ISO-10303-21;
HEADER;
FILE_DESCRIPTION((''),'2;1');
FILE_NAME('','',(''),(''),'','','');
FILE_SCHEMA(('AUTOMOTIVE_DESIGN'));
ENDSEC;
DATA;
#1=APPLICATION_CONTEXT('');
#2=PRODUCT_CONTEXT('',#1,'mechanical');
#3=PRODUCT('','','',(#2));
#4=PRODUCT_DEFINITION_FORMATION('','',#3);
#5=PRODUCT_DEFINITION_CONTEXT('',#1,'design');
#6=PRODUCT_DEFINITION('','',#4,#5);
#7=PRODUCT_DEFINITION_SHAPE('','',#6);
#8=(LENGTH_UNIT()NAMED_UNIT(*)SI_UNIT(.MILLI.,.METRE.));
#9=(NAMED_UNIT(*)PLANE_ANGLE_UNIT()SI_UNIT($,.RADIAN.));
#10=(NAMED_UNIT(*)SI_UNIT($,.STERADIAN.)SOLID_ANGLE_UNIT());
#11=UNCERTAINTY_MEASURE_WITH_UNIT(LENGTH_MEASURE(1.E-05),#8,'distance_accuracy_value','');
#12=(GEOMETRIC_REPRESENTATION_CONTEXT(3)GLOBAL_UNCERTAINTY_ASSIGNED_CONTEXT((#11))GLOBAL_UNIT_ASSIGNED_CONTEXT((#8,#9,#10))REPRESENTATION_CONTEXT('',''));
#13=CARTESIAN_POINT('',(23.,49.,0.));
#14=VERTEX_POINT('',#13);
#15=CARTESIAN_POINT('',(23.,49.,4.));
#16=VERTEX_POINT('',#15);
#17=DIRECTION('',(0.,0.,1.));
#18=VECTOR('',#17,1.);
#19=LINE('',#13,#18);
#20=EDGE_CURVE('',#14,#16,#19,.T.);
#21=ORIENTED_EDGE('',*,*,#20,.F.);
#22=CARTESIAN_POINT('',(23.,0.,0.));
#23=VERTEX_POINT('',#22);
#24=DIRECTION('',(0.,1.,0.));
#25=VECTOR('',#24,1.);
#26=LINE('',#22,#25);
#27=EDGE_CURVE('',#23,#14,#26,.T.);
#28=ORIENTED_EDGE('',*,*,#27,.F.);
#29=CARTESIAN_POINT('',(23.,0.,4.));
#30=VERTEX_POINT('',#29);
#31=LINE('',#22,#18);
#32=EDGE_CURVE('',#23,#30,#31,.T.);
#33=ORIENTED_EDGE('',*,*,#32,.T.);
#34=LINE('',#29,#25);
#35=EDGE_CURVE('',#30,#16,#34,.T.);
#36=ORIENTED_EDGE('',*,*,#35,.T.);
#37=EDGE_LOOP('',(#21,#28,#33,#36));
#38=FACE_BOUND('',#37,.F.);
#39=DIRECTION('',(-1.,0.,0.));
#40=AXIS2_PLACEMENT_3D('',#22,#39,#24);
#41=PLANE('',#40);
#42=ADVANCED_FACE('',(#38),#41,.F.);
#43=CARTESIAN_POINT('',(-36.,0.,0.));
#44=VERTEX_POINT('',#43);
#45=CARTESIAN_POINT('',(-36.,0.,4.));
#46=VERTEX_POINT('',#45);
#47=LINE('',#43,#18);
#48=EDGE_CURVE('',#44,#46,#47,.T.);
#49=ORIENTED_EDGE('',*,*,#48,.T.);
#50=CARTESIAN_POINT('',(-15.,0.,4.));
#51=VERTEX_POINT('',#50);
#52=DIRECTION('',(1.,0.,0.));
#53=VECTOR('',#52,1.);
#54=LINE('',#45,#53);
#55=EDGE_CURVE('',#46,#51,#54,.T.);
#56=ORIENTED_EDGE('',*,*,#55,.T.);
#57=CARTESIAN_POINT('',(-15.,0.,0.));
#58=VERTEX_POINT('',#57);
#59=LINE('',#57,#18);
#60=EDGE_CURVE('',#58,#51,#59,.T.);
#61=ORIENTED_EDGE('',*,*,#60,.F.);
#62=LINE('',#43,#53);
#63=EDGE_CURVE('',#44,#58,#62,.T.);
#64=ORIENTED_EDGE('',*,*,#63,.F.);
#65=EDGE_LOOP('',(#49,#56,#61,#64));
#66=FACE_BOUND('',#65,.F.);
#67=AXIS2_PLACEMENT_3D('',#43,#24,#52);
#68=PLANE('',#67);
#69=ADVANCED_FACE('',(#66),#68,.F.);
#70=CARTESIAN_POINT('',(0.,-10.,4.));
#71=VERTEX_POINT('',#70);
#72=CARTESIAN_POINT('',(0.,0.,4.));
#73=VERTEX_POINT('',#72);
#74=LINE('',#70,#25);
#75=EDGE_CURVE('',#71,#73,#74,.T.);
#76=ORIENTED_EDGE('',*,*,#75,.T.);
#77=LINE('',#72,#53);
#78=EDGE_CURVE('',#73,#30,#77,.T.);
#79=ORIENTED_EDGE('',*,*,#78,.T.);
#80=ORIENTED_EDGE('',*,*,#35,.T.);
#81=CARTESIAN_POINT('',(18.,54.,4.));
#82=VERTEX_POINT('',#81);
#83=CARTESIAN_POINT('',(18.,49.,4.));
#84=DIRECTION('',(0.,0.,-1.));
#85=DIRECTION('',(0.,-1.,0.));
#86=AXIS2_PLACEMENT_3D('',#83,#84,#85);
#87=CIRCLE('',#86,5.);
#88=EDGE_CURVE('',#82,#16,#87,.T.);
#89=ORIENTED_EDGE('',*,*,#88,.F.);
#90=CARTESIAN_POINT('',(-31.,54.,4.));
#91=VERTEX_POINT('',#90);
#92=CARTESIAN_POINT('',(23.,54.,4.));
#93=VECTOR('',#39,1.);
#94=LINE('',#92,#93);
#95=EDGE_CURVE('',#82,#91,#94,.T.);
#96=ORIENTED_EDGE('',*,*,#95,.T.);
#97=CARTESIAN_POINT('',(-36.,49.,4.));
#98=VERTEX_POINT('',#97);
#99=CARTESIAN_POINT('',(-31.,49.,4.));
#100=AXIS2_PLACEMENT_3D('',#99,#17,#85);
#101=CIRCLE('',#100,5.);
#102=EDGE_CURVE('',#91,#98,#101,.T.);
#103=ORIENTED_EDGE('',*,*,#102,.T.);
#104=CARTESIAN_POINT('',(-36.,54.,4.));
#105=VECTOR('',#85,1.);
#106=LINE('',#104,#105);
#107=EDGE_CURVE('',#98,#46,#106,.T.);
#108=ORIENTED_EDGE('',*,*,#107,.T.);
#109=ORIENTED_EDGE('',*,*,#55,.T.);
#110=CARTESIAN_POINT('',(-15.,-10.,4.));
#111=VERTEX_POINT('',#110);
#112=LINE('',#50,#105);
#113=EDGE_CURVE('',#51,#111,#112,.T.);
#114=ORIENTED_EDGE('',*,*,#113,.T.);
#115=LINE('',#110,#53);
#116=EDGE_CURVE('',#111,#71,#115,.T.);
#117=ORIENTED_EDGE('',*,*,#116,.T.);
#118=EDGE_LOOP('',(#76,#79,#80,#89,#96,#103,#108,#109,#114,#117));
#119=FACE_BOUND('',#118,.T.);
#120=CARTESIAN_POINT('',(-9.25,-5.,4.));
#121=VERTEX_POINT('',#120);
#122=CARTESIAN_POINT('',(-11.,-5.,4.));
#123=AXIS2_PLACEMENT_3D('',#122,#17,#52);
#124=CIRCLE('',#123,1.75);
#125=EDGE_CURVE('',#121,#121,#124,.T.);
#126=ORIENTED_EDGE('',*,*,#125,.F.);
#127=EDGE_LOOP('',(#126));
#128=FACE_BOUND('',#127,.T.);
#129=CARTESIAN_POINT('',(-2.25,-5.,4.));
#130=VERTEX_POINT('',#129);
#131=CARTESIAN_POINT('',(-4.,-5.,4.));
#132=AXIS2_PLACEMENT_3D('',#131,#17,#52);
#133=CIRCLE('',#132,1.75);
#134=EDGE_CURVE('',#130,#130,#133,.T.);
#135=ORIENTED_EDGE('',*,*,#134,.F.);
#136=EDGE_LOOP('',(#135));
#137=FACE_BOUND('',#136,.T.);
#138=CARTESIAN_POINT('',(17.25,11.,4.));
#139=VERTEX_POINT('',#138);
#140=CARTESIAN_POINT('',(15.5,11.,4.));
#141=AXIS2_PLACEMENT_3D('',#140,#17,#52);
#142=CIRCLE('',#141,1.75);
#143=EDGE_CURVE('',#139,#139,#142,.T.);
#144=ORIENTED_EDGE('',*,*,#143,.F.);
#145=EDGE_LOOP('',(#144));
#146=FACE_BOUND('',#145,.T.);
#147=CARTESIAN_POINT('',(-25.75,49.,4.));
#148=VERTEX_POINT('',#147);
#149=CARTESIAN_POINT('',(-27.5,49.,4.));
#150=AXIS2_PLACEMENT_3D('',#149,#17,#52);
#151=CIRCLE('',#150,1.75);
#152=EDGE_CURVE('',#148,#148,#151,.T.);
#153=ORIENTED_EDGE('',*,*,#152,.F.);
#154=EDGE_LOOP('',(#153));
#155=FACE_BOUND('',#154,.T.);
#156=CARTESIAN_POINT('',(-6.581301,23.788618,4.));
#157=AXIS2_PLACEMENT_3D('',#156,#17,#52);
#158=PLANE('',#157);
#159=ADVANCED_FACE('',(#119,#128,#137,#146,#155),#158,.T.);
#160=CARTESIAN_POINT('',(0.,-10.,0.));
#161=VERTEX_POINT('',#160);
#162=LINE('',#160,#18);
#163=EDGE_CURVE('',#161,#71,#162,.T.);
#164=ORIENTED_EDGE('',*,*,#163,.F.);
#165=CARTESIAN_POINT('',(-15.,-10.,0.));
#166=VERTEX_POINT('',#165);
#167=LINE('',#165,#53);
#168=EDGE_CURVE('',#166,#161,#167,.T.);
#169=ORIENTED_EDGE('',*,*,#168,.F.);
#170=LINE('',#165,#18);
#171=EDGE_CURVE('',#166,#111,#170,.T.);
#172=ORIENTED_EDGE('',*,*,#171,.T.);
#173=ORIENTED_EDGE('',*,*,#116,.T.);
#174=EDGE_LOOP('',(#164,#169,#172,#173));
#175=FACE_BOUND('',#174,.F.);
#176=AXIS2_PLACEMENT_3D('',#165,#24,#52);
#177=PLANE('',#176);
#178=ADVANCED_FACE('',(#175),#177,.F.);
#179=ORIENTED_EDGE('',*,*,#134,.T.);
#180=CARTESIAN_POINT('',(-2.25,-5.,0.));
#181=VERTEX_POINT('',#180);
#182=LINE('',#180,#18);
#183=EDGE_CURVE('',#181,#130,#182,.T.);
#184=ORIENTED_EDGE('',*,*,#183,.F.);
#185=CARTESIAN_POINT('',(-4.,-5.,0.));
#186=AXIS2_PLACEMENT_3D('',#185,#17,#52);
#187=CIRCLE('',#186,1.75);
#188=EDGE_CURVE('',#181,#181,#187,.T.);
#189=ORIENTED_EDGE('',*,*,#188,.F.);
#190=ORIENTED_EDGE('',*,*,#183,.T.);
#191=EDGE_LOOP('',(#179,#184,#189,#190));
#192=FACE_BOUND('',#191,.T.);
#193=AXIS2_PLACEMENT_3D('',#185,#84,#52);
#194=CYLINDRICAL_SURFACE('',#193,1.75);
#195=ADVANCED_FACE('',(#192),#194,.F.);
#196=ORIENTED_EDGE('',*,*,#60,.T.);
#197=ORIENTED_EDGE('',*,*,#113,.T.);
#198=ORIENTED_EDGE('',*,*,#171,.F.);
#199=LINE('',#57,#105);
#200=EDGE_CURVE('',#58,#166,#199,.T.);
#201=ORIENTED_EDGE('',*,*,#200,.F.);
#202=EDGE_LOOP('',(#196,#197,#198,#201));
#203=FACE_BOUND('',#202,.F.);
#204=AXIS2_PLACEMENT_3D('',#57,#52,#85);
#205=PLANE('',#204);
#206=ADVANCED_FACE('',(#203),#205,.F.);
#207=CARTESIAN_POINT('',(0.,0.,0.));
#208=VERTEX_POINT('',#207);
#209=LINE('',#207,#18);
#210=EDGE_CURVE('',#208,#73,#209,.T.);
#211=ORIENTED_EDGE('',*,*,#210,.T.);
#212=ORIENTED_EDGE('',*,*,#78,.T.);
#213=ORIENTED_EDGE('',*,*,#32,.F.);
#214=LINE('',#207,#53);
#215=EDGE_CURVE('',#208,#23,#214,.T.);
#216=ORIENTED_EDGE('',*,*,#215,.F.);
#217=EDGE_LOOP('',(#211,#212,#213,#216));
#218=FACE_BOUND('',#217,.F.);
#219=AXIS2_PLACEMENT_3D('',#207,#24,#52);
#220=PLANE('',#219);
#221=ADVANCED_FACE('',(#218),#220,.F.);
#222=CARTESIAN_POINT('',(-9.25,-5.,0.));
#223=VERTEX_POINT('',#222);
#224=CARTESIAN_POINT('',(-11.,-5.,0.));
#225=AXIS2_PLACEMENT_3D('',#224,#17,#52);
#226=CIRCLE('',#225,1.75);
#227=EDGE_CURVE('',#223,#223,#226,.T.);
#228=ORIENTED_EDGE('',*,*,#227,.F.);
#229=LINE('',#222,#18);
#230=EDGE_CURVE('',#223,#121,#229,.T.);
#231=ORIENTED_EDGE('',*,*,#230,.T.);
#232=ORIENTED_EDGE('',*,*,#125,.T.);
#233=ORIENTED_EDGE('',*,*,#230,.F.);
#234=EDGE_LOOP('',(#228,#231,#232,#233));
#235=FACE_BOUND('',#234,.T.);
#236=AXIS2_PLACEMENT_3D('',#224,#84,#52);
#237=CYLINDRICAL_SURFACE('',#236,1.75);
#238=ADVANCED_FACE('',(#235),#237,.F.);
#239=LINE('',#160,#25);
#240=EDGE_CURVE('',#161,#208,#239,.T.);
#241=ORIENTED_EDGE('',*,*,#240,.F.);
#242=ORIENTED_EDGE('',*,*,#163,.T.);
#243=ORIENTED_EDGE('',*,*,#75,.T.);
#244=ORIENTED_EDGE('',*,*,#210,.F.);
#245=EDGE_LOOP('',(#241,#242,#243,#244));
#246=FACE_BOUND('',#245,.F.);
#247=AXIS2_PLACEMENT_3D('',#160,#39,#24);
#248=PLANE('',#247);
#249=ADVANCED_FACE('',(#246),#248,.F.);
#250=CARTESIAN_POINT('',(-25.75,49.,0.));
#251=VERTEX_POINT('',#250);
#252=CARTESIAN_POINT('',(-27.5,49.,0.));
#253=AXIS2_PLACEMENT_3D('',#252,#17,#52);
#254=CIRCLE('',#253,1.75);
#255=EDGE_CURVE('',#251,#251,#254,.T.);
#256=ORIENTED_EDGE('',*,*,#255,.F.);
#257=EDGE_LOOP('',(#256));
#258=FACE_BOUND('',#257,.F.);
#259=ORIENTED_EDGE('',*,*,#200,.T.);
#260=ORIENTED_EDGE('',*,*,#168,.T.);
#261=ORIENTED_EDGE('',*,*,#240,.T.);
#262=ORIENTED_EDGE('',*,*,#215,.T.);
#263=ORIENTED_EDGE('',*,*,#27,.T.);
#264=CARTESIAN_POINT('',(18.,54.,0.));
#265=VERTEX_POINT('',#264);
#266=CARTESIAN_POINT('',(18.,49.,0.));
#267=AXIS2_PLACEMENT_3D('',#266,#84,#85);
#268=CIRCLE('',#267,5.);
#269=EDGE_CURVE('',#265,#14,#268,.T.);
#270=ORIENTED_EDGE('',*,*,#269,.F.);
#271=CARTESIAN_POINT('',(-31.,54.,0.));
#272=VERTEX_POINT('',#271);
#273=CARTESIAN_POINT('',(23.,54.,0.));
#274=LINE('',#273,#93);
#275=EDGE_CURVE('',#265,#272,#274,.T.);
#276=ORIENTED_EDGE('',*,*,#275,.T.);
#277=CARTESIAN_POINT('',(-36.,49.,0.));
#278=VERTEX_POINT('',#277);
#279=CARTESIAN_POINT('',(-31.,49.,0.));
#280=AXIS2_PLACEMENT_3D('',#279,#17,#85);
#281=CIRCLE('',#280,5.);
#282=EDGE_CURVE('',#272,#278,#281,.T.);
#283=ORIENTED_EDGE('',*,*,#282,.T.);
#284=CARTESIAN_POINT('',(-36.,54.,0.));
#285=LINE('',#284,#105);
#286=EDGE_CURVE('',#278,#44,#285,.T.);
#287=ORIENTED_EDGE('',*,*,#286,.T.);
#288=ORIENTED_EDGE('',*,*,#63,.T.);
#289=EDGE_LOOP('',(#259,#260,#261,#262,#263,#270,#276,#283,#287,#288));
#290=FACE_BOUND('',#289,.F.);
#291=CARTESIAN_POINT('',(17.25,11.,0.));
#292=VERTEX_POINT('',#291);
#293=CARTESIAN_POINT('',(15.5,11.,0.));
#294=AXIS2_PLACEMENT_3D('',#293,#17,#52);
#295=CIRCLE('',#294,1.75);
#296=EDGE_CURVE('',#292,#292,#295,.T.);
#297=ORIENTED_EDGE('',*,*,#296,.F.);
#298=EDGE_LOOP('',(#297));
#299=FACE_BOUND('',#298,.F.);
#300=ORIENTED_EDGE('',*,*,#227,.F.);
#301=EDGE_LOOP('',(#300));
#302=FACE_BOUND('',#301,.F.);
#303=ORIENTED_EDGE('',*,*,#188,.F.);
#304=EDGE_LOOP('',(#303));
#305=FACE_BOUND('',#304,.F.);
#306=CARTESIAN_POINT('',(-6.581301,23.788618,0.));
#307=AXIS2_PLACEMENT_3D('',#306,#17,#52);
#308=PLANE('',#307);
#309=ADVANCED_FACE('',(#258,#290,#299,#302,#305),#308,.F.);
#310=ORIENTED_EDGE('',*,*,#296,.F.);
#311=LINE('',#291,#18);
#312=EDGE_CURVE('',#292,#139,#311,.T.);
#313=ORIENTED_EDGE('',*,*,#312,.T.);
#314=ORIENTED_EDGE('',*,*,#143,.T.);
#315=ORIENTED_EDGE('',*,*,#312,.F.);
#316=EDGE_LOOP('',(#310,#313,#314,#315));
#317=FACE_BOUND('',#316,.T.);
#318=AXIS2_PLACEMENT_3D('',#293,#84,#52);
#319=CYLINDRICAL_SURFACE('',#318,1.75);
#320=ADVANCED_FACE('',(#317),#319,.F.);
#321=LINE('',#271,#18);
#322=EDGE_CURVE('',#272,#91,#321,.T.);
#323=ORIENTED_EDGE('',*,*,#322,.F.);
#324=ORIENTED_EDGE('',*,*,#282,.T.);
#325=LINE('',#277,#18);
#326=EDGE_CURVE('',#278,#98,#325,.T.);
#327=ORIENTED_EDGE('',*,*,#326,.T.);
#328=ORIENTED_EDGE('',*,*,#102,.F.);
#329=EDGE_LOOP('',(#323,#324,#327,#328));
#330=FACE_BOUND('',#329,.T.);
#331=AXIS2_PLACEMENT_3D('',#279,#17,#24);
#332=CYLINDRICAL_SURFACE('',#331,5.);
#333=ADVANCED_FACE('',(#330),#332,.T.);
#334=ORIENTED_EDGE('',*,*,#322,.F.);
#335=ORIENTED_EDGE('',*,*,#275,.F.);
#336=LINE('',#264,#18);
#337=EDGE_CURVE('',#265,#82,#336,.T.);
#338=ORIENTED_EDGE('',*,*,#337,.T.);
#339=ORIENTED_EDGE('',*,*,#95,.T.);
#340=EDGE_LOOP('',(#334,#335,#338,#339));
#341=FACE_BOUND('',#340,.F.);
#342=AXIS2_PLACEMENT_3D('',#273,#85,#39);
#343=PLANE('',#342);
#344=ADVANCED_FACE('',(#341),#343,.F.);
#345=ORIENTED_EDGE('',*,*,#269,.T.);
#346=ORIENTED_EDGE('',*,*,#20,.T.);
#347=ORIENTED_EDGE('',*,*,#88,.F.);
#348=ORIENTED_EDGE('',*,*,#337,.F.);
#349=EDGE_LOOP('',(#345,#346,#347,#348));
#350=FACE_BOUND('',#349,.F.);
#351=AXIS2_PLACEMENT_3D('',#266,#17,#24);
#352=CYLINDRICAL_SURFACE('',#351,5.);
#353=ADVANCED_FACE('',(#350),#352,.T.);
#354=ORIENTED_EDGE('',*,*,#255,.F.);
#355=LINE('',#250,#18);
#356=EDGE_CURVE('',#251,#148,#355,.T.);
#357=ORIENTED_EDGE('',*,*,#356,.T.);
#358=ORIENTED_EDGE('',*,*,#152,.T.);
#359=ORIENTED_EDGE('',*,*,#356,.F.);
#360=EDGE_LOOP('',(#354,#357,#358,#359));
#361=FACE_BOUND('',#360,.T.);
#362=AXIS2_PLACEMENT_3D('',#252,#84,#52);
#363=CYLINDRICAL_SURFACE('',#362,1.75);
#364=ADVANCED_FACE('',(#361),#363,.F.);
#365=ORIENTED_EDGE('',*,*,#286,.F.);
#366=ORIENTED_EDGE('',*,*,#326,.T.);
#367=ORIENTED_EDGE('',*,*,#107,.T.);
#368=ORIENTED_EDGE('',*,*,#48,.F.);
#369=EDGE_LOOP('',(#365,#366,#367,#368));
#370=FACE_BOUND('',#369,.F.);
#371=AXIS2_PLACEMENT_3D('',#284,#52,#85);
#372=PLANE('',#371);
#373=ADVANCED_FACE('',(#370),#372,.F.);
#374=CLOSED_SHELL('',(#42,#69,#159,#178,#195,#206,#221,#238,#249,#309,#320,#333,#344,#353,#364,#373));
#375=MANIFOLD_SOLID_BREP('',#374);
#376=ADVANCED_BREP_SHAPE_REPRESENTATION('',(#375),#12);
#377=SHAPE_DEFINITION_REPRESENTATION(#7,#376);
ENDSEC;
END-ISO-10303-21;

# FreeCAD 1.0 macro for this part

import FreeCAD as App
import Part
import Sketcher
from FreeCAD import Vector
Q = App.Units.Quantity


def edges_at(feature, points):
    """Names of the edges that pass closest to the given points."""
    edges = feature.Shape.Edges
    near = lambda p: min(range(len(edges)), key=lambda i: edges[i].distToShape(Part.Vertex(*p))[0])
    return sorted({f"Edge{near(p) + 1}" for p in points})

doc = App.newDocument("Part")
body = doc.addObject("PartDesign::Body", "Body")

sketch1 = body.newObject("Sketcher::SketchObject", "Sketch")
sketch1.AttachmentSupport = (doc.getObject("XY_Plane"), [""])
sketch1.MapMode = "FlatFace"
sketch1.addGeometry([
    Part.LineSegment(Vector(23, 54, 0), Vector(-36, 54, 0)),
    Part.LineSegment(Vector(-36, 54, 0), Vector(-36, 0, 0)),
    Part.LineSegment(Vector(-36, 0, 0), Vector(-15, 0, 0)),
    Part.LineSegment(Vector(-15, 0, 0), Vector(-15, -10, 0)),
    Part.LineSegment(Vector(-15, -10, 0), Vector(0, -10, 0)),
    Part.LineSegment(Vector(0, -10, 0), Vector(0, 0, 0)),
    Part.LineSegment(Vector(0, 0, 0), Vector(23, 0, 0)),
    Part.LineSegment(Vector(23, 0, 0), Vector(23, 54, 0)),
    Part.Circle(Vector(-11, -5, 0), Vector(0, 0, 1), 1.8),
    Part.Circle(Vector(-4, -5, 0), Vector(0, 0, 1), 1.8),
    Part.Circle(Vector(15.5, 11, 0), Vector(0, 0, 1), 1.8),
    Part.Circle(Vector(-27.5, 49, 0), Vector(0, 0, 1), 1.8),
], False)
sketch1.addConstraint([
    Sketcher.Constraint("Coincident", 0, 2, 1, 1),
    Sketcher.Constraint("Coincident", 1, 2, 2, 1),
    Sketcher.Constraint("Coincident", 2, 2, 3, 1),
    Sketcher.Constraint("Coincident", 3, 2, 4, 1),
    Sketcher.Constraint("Coincident", 4, 2, 5, 1),
    Sketcher.Constraint("Coincident", 5, 2, 6, 1),
    Sketcher.Constraint("Coincident", 6, 2, 7, 1),
    Sketcher.Constraint("Coincident", 7, 2, 0, 1),
    Sketcher.Constraint("Horizontal", 0),
    Sketcher.Constraint("Vertical", 1),
    Sketcher.Constraint("Horizontal", 2),
    Sketcher.Constraint("Vertical", 3),
    Sketcher.Constraint("Horizontal", 4),
    Sketcher.Constraint("Vertical", 5),
    Sketcher.Constraint("Horizontal", 6),
    Sketcher.Constraint("Vertical", 7),
    Sketcher.Constraint("Coincident", 5, 2, -1, 1),
    Sketcher.Constraint("Equal", 8, 9),
    Sketcher.Constraint("Equal", 9, 10),
    Sketcher.Constraint("Equal", 10, 11),
    Sketcher.Constraint("PointOnObject", 1, 2, -1),
    Sketcher.Constraint("Horizontal", 8, 3, 9, 3),
    Sketcher.Constraint("Diameter", 8, Q("3.5 mm")),
    Sketcher.Constraint("DistanceX", 0, 2, 0, 1, Q("59 mm")),
    Sketcher.Constraint("DistanceX", 2, 1, 2, 2, Q("21 mm")),
    Sketcher.Constraint("DistanceX", 4, 1, 4, 2, Q("15 mm")),
    Sketcher.Constraint("DistanceY", 1, 2, 1, 1, Q("54 mm")),
    Sketcher.Constraint("DistanceY", 3, 2, 3, 1, Q("10 mm")),
    Sketcher.Constraint("DistanceX", 8, 3, -1, 1, Q("11 mm")),
    Sketcher.Constraint("DistanceY", 8, 3, -1, 1, Q("5 mm")),
    Sketcher.Constraint("DistanceX", 9, 3, -1, 1, Q("4 mm")),
    Sketcher.Constraint("DistanceY", -1, 1, 10, 3, Q("11 mm")),
    Sketcher.Constraint("DistanceY", -1, 1, 11, 3, Q("49 mm")),
    Sketcher.Constraint("DistanceX", 11, 3, 10, 3, Q("43 mm")),
    Sketcher.Constraint("DistanceX", -1, 1, 10, 3, Q("15.5 mm")),
])
pad1 = body.newObject("PartDesign::Pad", "Pad")
pad1.Profile = sketch1
pad1.Length = 4
doc.recompute()

fillet = body.newObject("PartDesign::Fillet", "Fillet")
fillet.Base = (pad1, edges_at(pad1, [(23, 54, 2), (-36, 54, 2)]))
fillet.Radius = 5

doc.recompute()
